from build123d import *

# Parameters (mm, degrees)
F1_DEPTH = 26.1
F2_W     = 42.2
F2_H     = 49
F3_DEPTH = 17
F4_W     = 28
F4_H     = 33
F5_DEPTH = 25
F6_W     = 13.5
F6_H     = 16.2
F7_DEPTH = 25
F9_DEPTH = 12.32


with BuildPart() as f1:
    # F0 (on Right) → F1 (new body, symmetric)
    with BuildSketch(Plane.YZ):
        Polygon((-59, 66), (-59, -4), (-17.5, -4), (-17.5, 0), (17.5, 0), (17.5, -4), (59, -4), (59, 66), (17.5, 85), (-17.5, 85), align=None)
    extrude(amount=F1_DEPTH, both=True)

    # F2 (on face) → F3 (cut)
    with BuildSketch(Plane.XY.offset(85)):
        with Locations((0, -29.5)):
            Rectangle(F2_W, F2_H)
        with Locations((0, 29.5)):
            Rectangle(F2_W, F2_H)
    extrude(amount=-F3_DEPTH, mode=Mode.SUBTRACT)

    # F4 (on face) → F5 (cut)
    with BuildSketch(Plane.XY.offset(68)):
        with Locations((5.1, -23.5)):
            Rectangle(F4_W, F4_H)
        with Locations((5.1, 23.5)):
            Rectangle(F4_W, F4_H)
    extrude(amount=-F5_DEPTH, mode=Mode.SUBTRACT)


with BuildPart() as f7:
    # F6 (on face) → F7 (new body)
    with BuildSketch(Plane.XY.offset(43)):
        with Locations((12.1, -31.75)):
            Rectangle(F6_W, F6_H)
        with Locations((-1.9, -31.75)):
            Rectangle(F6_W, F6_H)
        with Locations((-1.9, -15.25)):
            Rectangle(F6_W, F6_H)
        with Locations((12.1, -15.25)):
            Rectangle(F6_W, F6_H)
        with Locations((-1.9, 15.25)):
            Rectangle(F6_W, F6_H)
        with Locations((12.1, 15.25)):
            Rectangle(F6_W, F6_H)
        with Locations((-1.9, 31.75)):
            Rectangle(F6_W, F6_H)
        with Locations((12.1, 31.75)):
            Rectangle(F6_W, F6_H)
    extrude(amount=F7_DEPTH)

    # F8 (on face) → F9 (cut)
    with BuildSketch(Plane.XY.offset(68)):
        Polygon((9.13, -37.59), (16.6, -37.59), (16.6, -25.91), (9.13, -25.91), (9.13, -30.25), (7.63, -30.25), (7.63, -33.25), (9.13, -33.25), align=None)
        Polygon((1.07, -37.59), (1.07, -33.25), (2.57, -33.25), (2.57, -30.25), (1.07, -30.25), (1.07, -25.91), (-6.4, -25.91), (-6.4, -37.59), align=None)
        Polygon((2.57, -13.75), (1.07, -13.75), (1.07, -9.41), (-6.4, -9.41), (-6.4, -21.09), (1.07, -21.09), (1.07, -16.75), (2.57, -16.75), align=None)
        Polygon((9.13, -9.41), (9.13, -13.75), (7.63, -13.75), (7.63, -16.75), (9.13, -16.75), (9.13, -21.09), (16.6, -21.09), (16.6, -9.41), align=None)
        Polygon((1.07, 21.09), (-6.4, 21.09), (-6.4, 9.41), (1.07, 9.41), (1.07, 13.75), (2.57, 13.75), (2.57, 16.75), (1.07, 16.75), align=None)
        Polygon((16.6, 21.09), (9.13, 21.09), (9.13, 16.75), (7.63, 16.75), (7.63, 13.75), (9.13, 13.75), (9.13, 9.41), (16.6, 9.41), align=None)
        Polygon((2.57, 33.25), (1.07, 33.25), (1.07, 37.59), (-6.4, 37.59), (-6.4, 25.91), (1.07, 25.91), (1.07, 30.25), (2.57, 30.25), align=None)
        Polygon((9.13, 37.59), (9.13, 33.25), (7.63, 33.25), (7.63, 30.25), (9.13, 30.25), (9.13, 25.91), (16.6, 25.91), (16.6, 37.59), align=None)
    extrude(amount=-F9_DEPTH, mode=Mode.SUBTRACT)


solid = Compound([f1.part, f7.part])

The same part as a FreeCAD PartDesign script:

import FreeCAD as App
import Part
import Sketcher
from FreeCAD import Vector


def add_polygon(sketch, points):
    """Adds a closed chain of lines whose ends are joined by coincident constraints."""
    first, n = sketch.GeometryCount, len(points)
    for a, b in zip(points, points[1:] + points[:1]):
        sketch.addGeometry(Part.LineSegment(App.Vector(*a, 0), App.Vector(*b, 0)), False)
    for i in range(n):
        sketch.addConstraint(Sketcher.Constraint("Coincident", first + i, 2, first + (i + 1) % n, 1))

doc = App.newDocument("Part")
body = doc.addObject("PartDesign::Body", "Body")

sketch1 = body.newObject("Sketcher::SketchObject", "Sketch")
sketch1.AttachmentSupport = (doc.getObject("YZ_Plane"), [""])
sketch1.MapMode = "FlatFace"
add_polygon(sketch1, [(-59, 66), (-59, -4), (-17.5, -4), (-17.5, 0), (17.5, 0), (17.5, -4), (59, -4), (59, 66), (17.5, 85), (-17.5, 85)])
sketch1.addConstraint([
    Sketcher.Constraint("Vertical", 0),
    Sketcher.Constraint("Horizontal", 1),
    Sketcher.Constraint("Vertical", 2),
    Sketcher.Constraint("Horizontal", 3),
    Sketcher.Constraint("Vertical", 4),
    Sketcher.Constraint("Horizontal", 5),
    Sketcher.Constraint("Vertical", 6),
    Sketcher.Constraint("Horizontal", 8),
    Sketcher.Constraint("Symmetric", 2, 2, 3, 2, -1, 1),
    Sketcher.Constraint("Symmetric", 0, 2, 5, 2, -2),
    Sketcher.Constraint("Horizontal", 6, 2, 9, 2),
    Sketcher.Constraint("Vertical", 4, 2, 7, 2),
    Sketcher.Constraint("Vertical", 2, 2, 8, 2),
    Sketcher.Constraint("DistanceX", 3, 1, 3, 2, 35.0),
    Sketcher.Constraint("DistanceY", 0, 2, 0, 1, 70.0),
    Sketcher.Constraint("DistanceY", 2, 1, 2, 2, 4.0),
    Sketcher.Constraint("DistanceX", 1, 1, 1, 2, 41.5),
    Sketcher.Constraint("DistanceY", -1, 1, 7, 2, 85.0),
])
pad1 = body.newObject("PartDesign::Pad", "Pad")
pad1.Profile = sketch1
pad1.Length = 52.2
pad1.Midplane = True

sketch2 = body.newObject("Sketcher::SketchObject", "Sketch001")
sketch2.AttachmentSupport = (doc.getObject("XY_Plane"), [""])
sketch2.MapMode = "FlatFace"
sketch2.AttachmentOffset = App.Placement(Vector(0, 0, 85), App.Rotation())
add_polygon(sketch2, [(-21, -5), (-21, -54), (21, -54), (21, -5)])
add_polygon(sketch2, [(-21, 54), (-21, 5), (21, 5), (21, 54)])
sketch2.addConstraint([
    Sketcher.Constraint("Vertical", 0),
    Sketcher.Constraint("Horizontal", 1),
    Sketcher.Constraint("Vertical", 2),
    Sketcher.Constraint("Horizontal", 3),
    Sketcher.Constraint("Vertical", 4),
    Sketcher.Constraint("Horizontal", 5),
    Sketcher.Constraint("Vertical", 6),
    Sketcher.Constraint("Horizontal", 7),
    Sketcher.Constraint("Symmetric", 2, 2, 4, 2, -1, 1),
    Sketcher.Constraint("Symmetric", 0, 2, 6, 2, -1, 1),
    Sketcher.Constraint("Vertical", 3, 2, 4, 2),
    Sketcher.Constraint("DistanceY", 0, 2, 0, 1, 49.0),
    Sketcher.Constraint("DistanceX", 1, 1, 1, 2, 42.2),
    Sketcher.Constraint("DistanceY", 0, 2, -1, 1, 54.0),
])
pocket1 = body.newObject("PartDesign::Pocket", "Pocket")
pocket1.Profile = sketch2
pocket1.Length = 17

sketch3 = body.newObject("Sketcher::SketchObject", "Sketch002")
sketch3.AttachmentSupport = (doc.getObject("XY_Plane"), [""])
sketch3.MapMode = "FlatFace"
sketch3.AttachmentOffset = App.Placement(Vector(0, 0, 68), App.Rotation())
add_polygon(sketch3, [(-9, -7), (-9, -40), (19, -40), (19, -7)])
add_polygon(sketch3, [(-9, 40), (-9, 7), (19, 7), (19, 40)])
sketch3.addConstraint([
    Sketcher.Constraint("Vertical", 0),
    Sketcher.Constraint("Horizontal", 1),
    Sketcher.Constraint("Vertical", 2),
    Sketcher.Constraint("Horizontal", 3),
    Sketcher.Constraint("Vertical", 4),
    Sketcher.Constraint("Horizontal", 5),
    Sketcher.Constraint("Vertical", 6),
    Sketcher.Constraint("Horizontal", 7),
    Sketcher.Constraint("Symmetric", 3, 2, 4, 2, -1),
    Sketcher.Constraint("Symmetric", 1, 2, 6, 2, -1),
    Sketcher.Constraint("DistanceX", 1, 1, 1, 2, 28.0),
    Sketcher.Constraint("DistanceY", 0, 2, 0, 1, 33.0),
    Sketcher.Constraint("DistanceY", 0, 2, -1, 1, 40.0),
    Sketcher.Constraint("DistanceX", 0, 2, -1, 1, 8.9),
])
pocket2 = body.newObject("PartDesign::Pocket", "Pocket001")
pocket2.Profile = sketch3
pocket2.Length = 25
body2 = doc.addObject("PartDesign::Body", "Body001")
body2.AllowCompound = True

sketch4 = body2.newObject("Sketcher::SketchObject", "Sketch003")
sketch4.AttachmentSupport = (doc.getObject("XY_Plane001"), [""])
sketch4.MapMode = "FlatFace"
sketch4.AttachmentOffset = App.Placement(Vector(0, 0, 43), App.Rotation())
add_polygon(sketch4, [(5, -24), (5, -40), (19, -40), (19, -24)])
add_polygon(sketch4, [(-9, -24), (-9, -40), (5, -40), (5, -24)])
add_polygon(sketch4, [(-9, -7), (-9, -23), (5, -23), (5, -7)])
add_polygon(sketch4, [(5, -7), (5, -23), (19, -23), (19, -7)])
add_polygon(sketch4, [(-9, 23), (-9, 7), (5, 7), (5, 23)])
add_polygon(sketch4, [(5, 23), (5, 7), (19, 7), (19, 23)])
add_polygon(sketch4, [(-9, 40), (-9, 24), (5, 24), (5, 40)])
add_polygon(sketch4, [(5, 40), (5, 24), (19, 24), (19, 40)])
sketch4.addConstraint([
    Sketcher.Constraint("Vertical", 0),
    Sketcher.Constraint("Horizontal", 1),
    Sketcher.Constraint("Vertical", 2),
    Sketcher.Constraint("Horizontal", 3),
    Sketcher.Constraint("Vertical", 4),
    Sketcher.Constraint("Horizontal", 5),
    Sketcher.Constraint("Vertical", 6),
    Sketcher.Constraint("Horizontal", 7),
    Sketcher.Constraint("Vertical", 8),
    Sketcher.Constraint("Horizontal", 9),
    Sketcher.Constraint("Vertical", 10),
    Sketcher.Constraint("Horizontal", 11),
    Sketcher.Constraint("Vertical", 12),
    Sketcher.Constraint("Horizontal", 13),
    Sketcher.Constraint("Vertical", 14),
    Sketcher.Constraint("Horizontal", 15),
    Sketcher.Constraint("Vertical", 16),
    Sketcher.Constraint("Horizontal", 17),
    Sketcher.Constraint("Vertical", 18),
    Sketcher.Constraint("Horizontal", 19),
    Sketcher.Constraint("Vertical", 20),
    Sketcher.Constraint("Horizontal", 21),
    Sketcher.Constraint("Vertical", 22),
    Sketcher.Constraint("Horizontal", 23),
    Sketcher.Constraint("Vertical", 24),
    Sketcher.Constraint("Horizontal", 25),
    Sketcher.Constraint("Vertical", 26),
    Sketcher.Constraint("Horizontal", 27),
    Sketcher.Constraint("Vertical", 28),
    Sketcher.Constraint("Horizontal", 29),
    Sketcher.Constraint("Vertical", 30),
    Sketcher.Constraint("Horizontal", 31),
    Sketcher.Constraint("Symmetric", 11, 2, 16, 2, -1),
    Sketcher.Constraint("Symmetric", 9, 2, 18, 2, -1),
    Sketcher.Constraint("Symmetric", 15, 2, 20, 2, -1),
    Sketcher.Constraint("Symmetric", 13, 2, 22, 2, -1),
    Sketcher.Constraint("Symmetric", 7, 2, 24, 2, -1),
    Sketcher.Constraint("Symmetric", 5, 2, 26, 2, -1),
    Sketcher.Constraint("Symmetric", 3, 2, 28, 2, -1),
    Sketcher.Constraint("Symmetric", 1, 2, 30, 2, -1),
    Sketcher.Constraint("Horizontal", 1, 2, 4, 2),
    Sketcher.Constraint("Horizontal", 3, 2, 6, 2),
    Sketcher.Constraint("Horizontal", 9, 2, 12, 2),
    Sketcher.Constraint("Horizontal", 11, 2, 14, 2),
    Sketcher.Constraint("Vertical", 7, 2, 8, 2),
    Sketcher.Constraint("Vertical", 6, 2, 9, 2),
    Sketcher.Constraint("Vertical", 3, 2, 12, 2),
    Sketcher.Constraint("Vertical", 2, 2, 13, 2),
    Sketcher.Constraint("Equal", 3, 5),
    Sketcher.Constraint("Equal", 6, 8),
    Sketcher.Constraint("DistanceX", 1, 1, 1, 2, 13.5),
    Sketcher.Constraint("DistanceY", 0, 2, 0, 1, 16.2),
    Sketcher.Constraint("DistanceX", 4, 2, 0, 2, 14.0),
    Sketcher.Constraint("DistanceY", 7, 2, 8, 2, 0.3),
    Sketcher.Constraint("DistanceY", 11, 2, 16, 2, 14.3),
    Sketcher.Constraint("DistanceX", -1, 1, 0, 2, 5.35),
])
pad2 = body2.newObject("PartDesign::Pad", "Pad001")
pad2.Profile = sketch4
pad2.Length = 25

sketch5 = body2.newObject("Sketcher::SketchObject", "Sketch004")
sketch5.AttachmentSupport = (doc.getObject("XY_Plane001"), [""])
sketch5.MapMode = "FlatFace"
sketch5.AttachmentOffset = App.Placement(Vector(0, 0, 68), App.Rotation())
add_polygon(sketch5, [(9.1, -37.6), (16.6, -37.6), (16.6, -25.9), (9.1, -25.9), (9.1, -30.2), (7.6, -30.2), (7.6, -33.2), (9.1, -33.2)])
add_polygon(sketch5, [(1.1, -37.6), (1.1, -33.2), (2.6, -33.2), (2.6, -30.2), (1.1, -30.2), (1.1, -25.9), (-6.4, -25.9), (-6.4, -37.6)])
add_polygon(sketch5, [(2.6, -13.8), (1.1, -13.8), (1.1, -9.4), (-6.4, -9.4), (-6.4, -21.1), (1.1, -21.1), (1.1, -16.8), (2.6, -16.8)])
add_polygon(sketch5, [(9.1, -9.4), (9.1, -13.8), (7.6, -13.8), (7.6, -16.8), (9.1, -16.8), (9.1, -21.1), (16.6, -21.1), (16.6, -9.4)])
add_polygon(sketch5, [(1.1, 21.1), (-6.4, 21.1), (-6.4, 9.4), (1.1, 9.4), (1.1, 13.8), (2.6, 13.8), (2.6, 16.8), (1.1, 16.8)])
add_polygon(sketch5, [(16.6, 21.1), (9.1, 21.1), (9.1, 16.8), (7.6, 16.8), (7.6, 13.8), (9.1, 13.8), (9.1, 9.4), (16.6, 9.4)])
add_polygon(sketch5, [(2.6, 33.2), (1.1, 33.2), (1.1, 37.6), (-6.4, 37.6), (-6.4, 25.9), (1.1, 25.9), (1.1, 30.2), (2.6, 30.2)])
add_polygon(sketch5, [(9.1, 37.6), (9.1, 33.2), (7.6, 33.2), (7.6, 30.2), (9.1, 30.2), (9.1, 25.9), (16.6, 25.9), (16.6, 37.6)])
sketch5.addConstraint([
    Sketcher.Constraint("Horizontal", 0),
    Sketcher.Constraint("Vertical", 1),
    Sketcher.Constraint("Horizontal", 2),
    Sketcher.Constraint("Vertical", 3),
    Sketcher.Constraint("Horizontal", 4),
    Sketcher.Constraint("Vertical", 5),
    Sketcher.Constraint("Horizontal", 6),
    Sketcher.Constraint("Vertical", 7),
    Sketcher.Constraint("Vertical", 8),
    Sketcher.Constraint("Horizontal", 9),
    Sketcher.Constraint("Vertical", 10),
    Sketcher.Constraint("Horizontal", 11),
    Sketcher.Constraint("Vertical", 12),
    Sketcher.Constraint("Horizontal", 13),
    Sketcher.Constraint("Vertical", 14),
    Sketcher.Constraint("Horizontal", 15),
    Sketcher.Constraint("Horizontal", 16),
    Sketcher.Constraint("Vertical", 17),
    Sketcher.Constraint("Horizontal", 18),
    Sketcher.Constraint("Vertical", 19),
    Sketcher.Constraint("Horizontal", 20),
    Sketcher.Constraint("Vertical", 21),
    Sketcher.Constraint("Horizontal", 22),
    Sketcher.Constraint("Vertical", 23),
    Sketcher.Constraint("Vertical", 24),
    Sketcher.Constraint("Horizontal", 25),
    Sketcher.Constraint("Vertical", 26),
    Sketcher.Constraint("Horizontal", 27),
    Sketcher.Constraint("Vertical", 28),
    Sketcher.Constraint("Horizontal", 29),
    Sketcher.Constraint("Vertical", 30),
    Sketcher.Constraint("Horizontal", 31),
    Sketcher.Constraint("Horizontal", 32),
    Sketcher.Constraint("Vertical", 33),
    Sketcher.Constraint("Horizontal", 34),
    Sketcher.Constraint("Vertical", 35),
    Sketcher.Constraint("Horizontal", 36),
    Sketcher.Constraint("Vertical", 37),
    Sketcher.Constraint("Horizontal", 38),
    Sketcher.Constraint("Vertical", 39),
    Sketcher.Constraint("Horizontal", 40),
    Sketcher.Constraint("Vertical", 41),
    Sketcher.Constraint("Horizontal", 42),
    Sketcher.Constraint("Vertical", 43),
    Sketcher.Constraint("Horizontal", 44),
    Sketcher.Constraint("Vertical", 45),
    Sketcher.Constraint("Horizontal", 46),
    Sketcher.Constraint("Vertical", 47),
    Sketcher.Constraint("Horizontal", 48),
    Sketcher.Constraint("Vertical", 49),
    Sketcher.Constraint("Horizontal", 50),
    Sketcher.Constraint("Vertical", 51),
    Sketcher.Constraint("Horizontal", 52),
    Sketcher.Constraint("Vertical", 53),
    Sketcher.Constraint("Horizontal", 54),
    Sketcher.Constraint("Vertical", 55),
    Sketcher.Constraint("Vertical", 56),
    Sketcher.Constraint("Horizontal", 57),
    Sketcher.Constraint("Vertical", 58),
    Sketcher.Constraint("Horizontal", 59),
    Sketcher.Constraint("Vertical", 60),
    Sketcher.Constraint("Horizontal", 61),
    Sketcher.Constraint("Vertical", 62),
    Sketcher.Constraint("Horizontal", 63),
    Sketcher.Constraint("Symmetric", 19, 2, 32, 2, -1),
    Sketcher.Constraint("Symmetric", 17, 2, 34, 2, -1),
    Sketcher.Constraint("Symmetric", 23, 2, 36, 2, -1),
    Sketcher.Constraint("Symmetric", 21, 2, 38, 2, -1),
    Sketcher.Constraint("Symmetric", 28, 2, 40, 2, -1),
    Sketcher.Constraint("Symmetric", 26, 2, 42, 2, -1),
    Sketcher.Constraint("Symmetric", 24, 2, 44, 2, -1),
    Sketcher.Constraint("Symmetric", 30, 2, 46, 2, -1),
    Sketcher.Constraint("Symmetric", 8, 2, 48, 2, -1),
    Sketcher.Constraint("Symmetric", 14, 2, 50, 2, -1),
    Sketcher.Constraint("Symmetric", 12, 2, 52, 2, -1),
    Sketcher.Constraint("Symmetric", 10, 2, 54, 2, -1),
    Sketcher.Constraint("Symmetric", 6, 2, 56, 2, -1),
    Sketcher.Constraint("Symmetric", 4, 2, 58, 2, -1),
    Sketcher.Constraint("Symmetric", 2, 2, 60, 2, -1),
    Sketcher.Constraint("Symmetric", 0, 2, 62, 2, -1),
    Sketcher.Constraint("Horizontal", 6, 2, 8, 2),
    Sketcher.Constraint("Horizontal", 4, 2, 10, 2),
    Sketcher.Constraint("Horizontal", 2, 2, 12, 2),
    Sketcher.Constraint("Horizontal", 7, 2, 14, 2),
    Sketcher.Constraint("Horizontal", 23, 2, 24, 2),
    Sketcher.Constraint("Horizontal", 22, 2, 26, 2),
    Sketcher.Constraint("Horizontal", 20, 2, 28, 2),
    Sketcher.Constraint("Horizontal", 18, 2, 30, 2),
    Sketcher.Constraint("Vertical", 3, 2, 6, 2),
    Sketcher.Constraint("Vertical", 8, 2, 11, 2),
    Sketcher.Constraint("Vertical", 15, 2, 16, 2),
    Sketcher.Constraint("Vertical", 14, 2, 18, 2),
    Sketcher.Constraint("Vertical", 17, 2, 20, 2),
    Sketcher.Constraint("Vertical", 10, 2, 22, 2),
    Sketcher.Constraint("Vertical", 7, 2, 24, 2),
    Sketcher.Constraint("Vertical", 5, 2, 25, 2),
    Sketcher.Constraint("Vertical", 24, 2, 27, 2),
    Sketcher.Constraint("Vertical", 1, 2, 29, 2),
    Sketcher.Constraint("Equal", 6, 9),
    Sketcher.Constraint("Equal", 2, 13),
    Sketcher.Constraint("Equal", 3, 7),
    Sketcher.Constraint("Equal", 12, 17),
    Sketcher.Constraint("Equal", 14, 19),
    Sketcher.Constraint("Equal", 17, 21),
    Sketcher.Constraint("DistanceY", 5, 2, 5, 1, 3.0),
    Sketcher.Constraint("DistanceX", 4, 2, 4, 1, 1.5),
    Sketcher.Constraint("DistanceX", 0, 1, 0, 2, 7.47),
    Sketcher.Constraint("DistanceY", 1, 1, 1, 2, 11.68),
    Sketcher.Constraint("DistanceX", -1, 1, 0, 2, 16.6),
    Sketcher.Constraint("DistanceX", 13, 2, -1, 1, 6.4),
    Sketcher.Constraint("DistanceY", 0, 2, -1, 1, 37.59),
    Sketcher.Constraint("DistanceY", 16, 2, -1, 1, 13.75),
])
pocket3 = body2.newObject("PartDesign::Pocket", "Pocket002")
pocket3.Profile = sketch5
pocket3.Length = 12.32

doc.recompute()
